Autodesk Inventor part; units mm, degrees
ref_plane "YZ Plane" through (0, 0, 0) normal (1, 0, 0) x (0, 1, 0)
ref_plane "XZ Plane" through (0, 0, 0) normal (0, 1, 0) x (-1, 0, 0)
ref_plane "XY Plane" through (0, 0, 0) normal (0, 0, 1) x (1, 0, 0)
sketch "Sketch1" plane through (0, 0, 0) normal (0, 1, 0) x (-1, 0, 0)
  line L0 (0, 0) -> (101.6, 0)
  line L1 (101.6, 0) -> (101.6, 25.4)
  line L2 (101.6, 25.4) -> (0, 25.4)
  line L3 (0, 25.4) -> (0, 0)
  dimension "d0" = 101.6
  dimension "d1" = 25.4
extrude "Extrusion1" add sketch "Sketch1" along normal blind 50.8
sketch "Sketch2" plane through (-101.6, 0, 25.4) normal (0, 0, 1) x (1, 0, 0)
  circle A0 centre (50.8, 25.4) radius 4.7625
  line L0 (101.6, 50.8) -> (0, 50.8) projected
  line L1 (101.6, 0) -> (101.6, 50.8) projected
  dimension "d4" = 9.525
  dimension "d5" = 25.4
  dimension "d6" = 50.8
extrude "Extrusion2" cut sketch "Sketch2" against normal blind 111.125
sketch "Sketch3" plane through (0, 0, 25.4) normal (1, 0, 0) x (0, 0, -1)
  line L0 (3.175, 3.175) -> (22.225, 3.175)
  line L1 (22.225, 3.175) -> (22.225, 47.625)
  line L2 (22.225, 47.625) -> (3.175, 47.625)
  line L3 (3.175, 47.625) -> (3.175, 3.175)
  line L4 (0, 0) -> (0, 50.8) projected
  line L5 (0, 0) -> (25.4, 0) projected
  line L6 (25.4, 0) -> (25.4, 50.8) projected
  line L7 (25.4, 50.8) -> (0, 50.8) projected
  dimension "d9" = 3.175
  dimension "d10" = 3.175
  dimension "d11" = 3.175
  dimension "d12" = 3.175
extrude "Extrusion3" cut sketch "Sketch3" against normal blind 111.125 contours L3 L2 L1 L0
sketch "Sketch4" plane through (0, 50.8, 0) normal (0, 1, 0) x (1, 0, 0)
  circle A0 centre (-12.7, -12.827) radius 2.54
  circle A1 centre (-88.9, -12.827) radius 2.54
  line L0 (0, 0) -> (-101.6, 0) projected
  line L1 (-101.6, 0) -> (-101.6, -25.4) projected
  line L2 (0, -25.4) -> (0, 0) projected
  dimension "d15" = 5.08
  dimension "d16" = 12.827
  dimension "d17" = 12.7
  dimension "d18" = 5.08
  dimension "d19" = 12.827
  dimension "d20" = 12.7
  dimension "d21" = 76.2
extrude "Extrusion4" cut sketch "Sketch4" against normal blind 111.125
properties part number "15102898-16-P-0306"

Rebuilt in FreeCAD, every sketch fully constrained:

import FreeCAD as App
import Part
import Sketcher

V = App.Vector
Q = App.Units.Quantity

doc = App.newDocument("Part")
body = doc.addObject("PartDesign::Body", "Body")

# Sketch on XZ plane
sketch1 = doc.addObject("Sketcher::SketchObject", "Sketch")
body.addObject(sketch1)
sketch1.AttachmentSupport = (doc.XZ_Plane, [""])
sketch1.MapMode = "FlatFace"
sketch1.addGeometry([
    Part.LineSegment(V(0, 25, 0), V(0, 0, 0)),
    Part.LineSegment(V(0, 0, 0), V(-102, 0, 0)),
    Part.LineSegment(V(-102, 0, 0), V(-102, 25, 0)),
    Part.LineSegment(V(-102, 25, 0), V(0, 25, 0)),
], False)
sketch1.addConstraint([
    Sketcher.Constraint("Coincident", 0, 2, 1, 1),
    Sketcher.Constraint("Coincident", 1, 2, 2, 1),
    Sketcher.Constraint("Coincident", 2, 2, 3, 1),
    Sketcher.Constraint("Coincident", 3, 2, 0, 1),
    Sketcher.Constraint("Vertical", 0),
    Sketcher.Constraint("Horizontal", 1),
    Sketcher.Constraint("Vertical", 2),
    Sketcher.Constraint("Horizontal", 3),
    Sketcher.Constraint("Coincident", 0, 2, -1, 1),
    Sketcher.Constraint("DistanceX", 1, 2, 1, 1, Q("4 in")),
    Sketcher.Constraint("DistanceY", 0, 2, 0, 1, Q("1 in")),
])
pad1 = doc.addObject("PartDesign::Pad", "Pad")
body.addObject(pad1)
pad1.Profile = sketch1
pad1.Length = Q("2 in")
pad1.Reversed = True

# Sketch on XY plane
sketch2 = doc.addObject("Sketcher::SketchObject", "Sketch001")
body.addObject(sketch2)
sketch2.AttachmentSupport = (doc.XY_Plane, [""])
sketch2.MapMode = "FlatFace"
sketch2.AttachmentOffset = App.Placement(V(0, 0, 1 * 25.4), App.Rotation())
sketch2.addGeometry(Part.Circle(V(-50.8, 25.4, 0), V(0, 0, 1), 4.8), False)
sketch2.addConstraint([
    Sketcher.Constraint("Diameter", 0, Q("0.375 in")),
    Sketcher.Constraint("DistanceX", 0, 3, -1, 1, Q("2 in")),
    Sketcher.Constraint("DistanceY", -1, 1, 0, 3, Q("1 in")),
])
pocket1 = doc.addObject("PartDesign::Pocket", "Pocket")
body.addObject(pocket1)
pocket1.Profile = sketch2
pocket1.Length = Q("4.375 in")

# Sketch on YZ plane
sketch3 = doc.addObject("Sketcher::SketchObject", "Sketch002")
body.addObject(sketch3)
sketch3.AttachmentSupport = (doc.YZ_Plane, [""])
sketch3.MapMode = "FlatFace"
sketch3.addGeometry([
    Part.LineSegment(V(48, 22, 0), V(3, 22, 0)),
    Part.LineSegment(V(3, 22, 0), V(3, 3, 0)),
    Part.LineSegment(V(3, 3, 0), V(48, 3, 0)),
    Part.LineSegment(V(48, 3, 0), V(48, 22, 0)),
], False)
sketch3.addConstraint([
    Sketcher.Constraint("Coincident", 0, 2, 1, 1),
    Sketcher.Constraint("Coincident", 1, 2, 2, 1),
    Sketcher.Constraint("Coincident", 2, 2, 3, 1),
    Sketcher.Constraint("Coincident", 3, 2, 0, 1),
    Sketcher.Constraint("Horizontal", 0),
    Sketcher.Constraint("Vertical", 1),
    Sketcher.Constraint("Horizontal", 2),
    Sketcher.Constraint("Vertical", 3),
    Sketcher.Constraint("DistanceX", -1, 1, 0, 2, Q("0.125 in")),
    Sketcher.Constraint("DistanceY", -1, 1, 1, 2, Q("0.125 in")),
    Sketcher.Constraint("DistanceX", 0, 2, 0, 1, Q("1.75 in")),
    Sketcher.Constraint("DistanceY", 1, 2, 1, 1, Q("0.75 in")),
])
pocket2 = doc.addObject("PartDesign::Pocket", "Pocket001")
body.addObject(pocket2)
pocket2.Profile = sketch3
pocket2.Length = Q("4.375 in")

# Sketch on XZ plane
sketch4 = doc.addObject("Sketcher::SketchObject", "Sketch003")
body.addObject(sketch4)
sketch4.AttachmentSupport = (doc.XZ_Plane, [""])
sketch4.MapMode = "FlatFace"
sketch4.AttachmentOffset = App.Placement(V(0, 0, -2 * 25.4), App.Rotation())
sketch4.addGeometry([
    Part.Circle(V(-12.7, 12.8, 0), V(0, 0, 1), 2.5),
    Part.Circle(V(-88.9, 12.8, 0), V(0, 0, 1), 2.5),
], False)
sketch4.addConstraint([
    Sketcher.Constraint("Equal", 0, 1),
    Sketcher.Constraint("Horizontal", 0, 3, 1, 3),
    Sketcher.Constraint("Diameter", 0, Q("0.2 in")),
    Sketcher.Constraint("DistanceX", 1, 3, 0, 3, Q("3 in")),
    Sketcher.Constraint("DistanceX", 0, 3, -1, 1, Q("0.5 in")),
    Sketcher.Constraint("DistanceY", -1, 1, 0, 3, Q("0.505 in")),
])
pocket3 = doc.addObject("PartDesign::Pocket", "Pocket002")
body.addObject(pocket3)
pocket3.Profile = sketch4
pocket3.Length = Q("4.375 in")
pocket3.Reversed = True

doc.recompute()
